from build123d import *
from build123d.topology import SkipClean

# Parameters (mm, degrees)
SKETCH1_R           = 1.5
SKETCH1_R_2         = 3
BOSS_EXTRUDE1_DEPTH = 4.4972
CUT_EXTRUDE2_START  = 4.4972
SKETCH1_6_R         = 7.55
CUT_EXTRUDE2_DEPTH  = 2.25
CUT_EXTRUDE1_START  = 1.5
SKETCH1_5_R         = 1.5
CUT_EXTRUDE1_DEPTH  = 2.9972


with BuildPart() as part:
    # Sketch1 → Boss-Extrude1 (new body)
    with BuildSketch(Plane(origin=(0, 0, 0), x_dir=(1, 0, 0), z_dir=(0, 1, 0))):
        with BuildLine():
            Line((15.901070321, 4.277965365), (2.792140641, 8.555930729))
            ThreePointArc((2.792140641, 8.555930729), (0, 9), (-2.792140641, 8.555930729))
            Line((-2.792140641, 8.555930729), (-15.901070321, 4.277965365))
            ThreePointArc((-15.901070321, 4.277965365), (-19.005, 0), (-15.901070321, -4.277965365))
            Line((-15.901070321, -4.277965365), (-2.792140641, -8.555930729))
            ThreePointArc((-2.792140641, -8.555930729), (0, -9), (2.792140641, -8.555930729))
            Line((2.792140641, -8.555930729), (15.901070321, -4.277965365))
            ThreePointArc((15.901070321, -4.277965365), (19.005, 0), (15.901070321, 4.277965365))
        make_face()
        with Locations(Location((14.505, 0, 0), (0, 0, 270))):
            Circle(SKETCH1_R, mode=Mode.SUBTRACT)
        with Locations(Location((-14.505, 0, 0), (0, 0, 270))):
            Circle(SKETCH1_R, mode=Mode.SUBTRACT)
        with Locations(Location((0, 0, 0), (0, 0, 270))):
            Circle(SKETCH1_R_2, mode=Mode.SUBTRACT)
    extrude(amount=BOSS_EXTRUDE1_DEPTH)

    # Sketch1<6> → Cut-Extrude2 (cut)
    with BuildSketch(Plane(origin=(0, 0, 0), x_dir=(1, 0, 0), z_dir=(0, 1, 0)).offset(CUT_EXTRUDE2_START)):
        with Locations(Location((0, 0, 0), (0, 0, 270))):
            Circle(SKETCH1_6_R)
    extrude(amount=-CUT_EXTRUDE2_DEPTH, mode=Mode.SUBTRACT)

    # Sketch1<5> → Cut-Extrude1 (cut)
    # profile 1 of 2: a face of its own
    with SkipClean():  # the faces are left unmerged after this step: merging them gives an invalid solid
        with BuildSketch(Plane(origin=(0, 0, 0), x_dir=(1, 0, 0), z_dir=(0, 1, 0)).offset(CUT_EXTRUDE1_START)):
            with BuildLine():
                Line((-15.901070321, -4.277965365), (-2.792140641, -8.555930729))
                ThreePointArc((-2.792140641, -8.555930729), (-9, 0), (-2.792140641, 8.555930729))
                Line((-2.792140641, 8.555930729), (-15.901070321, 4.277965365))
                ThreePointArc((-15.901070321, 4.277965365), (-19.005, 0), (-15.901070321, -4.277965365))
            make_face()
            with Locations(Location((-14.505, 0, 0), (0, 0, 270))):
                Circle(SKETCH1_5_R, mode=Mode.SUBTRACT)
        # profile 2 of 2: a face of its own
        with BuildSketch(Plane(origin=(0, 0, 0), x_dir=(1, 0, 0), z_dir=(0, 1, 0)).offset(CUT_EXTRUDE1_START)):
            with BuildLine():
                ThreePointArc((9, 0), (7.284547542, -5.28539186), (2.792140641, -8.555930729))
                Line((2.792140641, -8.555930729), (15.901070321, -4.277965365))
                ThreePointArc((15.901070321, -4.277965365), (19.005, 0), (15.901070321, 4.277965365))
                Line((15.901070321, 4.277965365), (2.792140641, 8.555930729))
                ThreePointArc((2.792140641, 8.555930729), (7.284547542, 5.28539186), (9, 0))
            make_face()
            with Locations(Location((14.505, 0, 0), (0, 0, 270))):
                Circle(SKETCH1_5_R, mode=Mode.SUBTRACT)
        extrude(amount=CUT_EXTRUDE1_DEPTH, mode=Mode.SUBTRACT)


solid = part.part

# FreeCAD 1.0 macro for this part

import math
import FreeCAD as App
import Part
import Sketcher
from FreeCAD import Vector
Q = App.Units.Quantity

doc = App.newDocument("Part")
params = doc.addObject("Spreadsheet::Sheet", "Params")
for row, (alias, value) in enumerate([
    ("sketch1_diameter", "3 mm"),
    ("sketch1_diameter2", "6 mm"),
    ("sketch1_radius", "9 mm"),
    ("sketch1_radius2", "4.5 mm"),
    ("pad1_length", "4.4972 mm"),
    ("sketch2_diameter", "15.1 mm"),
    ("pocket1_length", "2.25 mm"),
    ("sketch3_diameter", "3 mm"),
    ("sketch3_radius", "9 mm"),
    ("sketch3_radius2", "4.5 mm"),
    ("pocket2_length", "2.9972 mm"),
], start=1):
    params.set(f"A{row}", alias)
    params.set(f"B{row}", "=" + value)
    params.setAlias(f"B{row}", alias)

body = doc.addObject("PartDesign::Body", "Body")

sketch1 = body.newObject("Sketcher::SketchObject", "Sketch")
sketch1.AttachmentSupport = (doc.getObject("XZ_Plane"), [""])
sketch1.MapMode = "FlatFace"
sketch1.addGeometry([
    Part.LineSegment(Vector(15.9, -4.3, 0), Vector(2.8, -8.6, 0)),
    Part.ArcOfCircle(Part.Circle(Vector(0, 0, 0), Vector(0, 0, 1), 9), math.radians(-108), math.radians(-72)),
    Part.LineSegment(Vector(-2.8, -8.6, 0), Vector(-15.9, -4.3, 0)),
    Part.ArcOfCircle(Part.Circle(Vector(-14.5, 0, 0), Vector(0, 0, 1), 4.5), math.radians(108), math.radians(252)),
    Part.LineSegment(Vector(-15.9, 4.3, 0), Vector(-2.8, 8.6, 0)),
    Part.ArcOfCircle(Part.Circle(Vector(0, 0, 0), Vector(0, 0, 1), 9), math.radians(72), math.radians(108)),
    Part.LineSegment(Vector(2.8, 8.6, 0), Vector(15.9, 4.3, 0)),
    Part.ArcOfCircle(Part.Circle(Vector(14.5, 0, 0), Vector(0, 0, 1), 4.5), math.radians(-72), math.radians(72)),
    Part.Circle(Vector(-14.5, 0, 0), Vector(0, 0, 1), 1.5),
    Part.Circle(Vector(0, 0, 0), Vector(0, 0, 1), 3),
    Part.Circle(Vector(14.5, 0, 0), Vector(0, 0, 1), 1.5),
], False)
sketch1.addConstraint([
    Sketcher.Constraint("Tangent", 0, 2, 1, 2),
    Sketcher.Constraint("Tangent", 1, 1, 2, 1),
    Sketcher.Constraint("Tangent", 2, 2, 3, 2),
    Sketcher.Constraint("Tangent", 3, 1, 4, 1),
    Sketcher.Constraint("Tangent", 4, 2, 5, 2),
    Sketcher.Constraint("Tangent", 5, 1, 6, 1),
    Sketcher.Constraint("Tangent", 6, 2, 7, 2),
    Sketcher.Constraint("Tangent", 7, 1, 0, 1),
    Sketcher.Constraint("Coincident", 1, 3, -1, 1),
    Sketcher.Constraint("Coincident", 5, 3, -1, 1),
    Sketcher.Constraint("Coincident", 9, 3, -1, 1),
    Sketcher.Constraint("Coincident", 8, 3, 3, 3),
    Sketcher.Constraint("Coincident", 10, 3, 7, 3),
    Sketcher.Constraint("Equal", 1, 5),
    Sketcher.Constraint("Equal", 3, 7),
    Sketcher.Constraint("Equal", 8, 10),
    Sketcher.Constraint("Symmetric", 3, 3, 7, 3, -1, 1),
    Sketcher.Constraint("PointOnObject", 3, 3, -1),
    Sketcher.Constraint("Diameter", 8, Q("3 mm")),
    Sketcher.Constraint("Diameter", 9, Q("6 mm")),
    Sketcher.Constraint("Radius", 1, Q("9 mm")),
    Sketcher.Constraint("Radius", 3, Q("4.5 mm")),
    Sketcher.Constraint("DistanceX", 3, 3, 7, 3, Q("29.01 mm")),
])
sketch1.setExpression("Constraints[18]", "Params.sketch1_diameter")
sketch1.setExpression("Constraints[19]", "Params.sketch1_diameter2")
sketch1.setExpression("Constraints[20]", "Params.sketch1_radius")
sketch1.setExpression("Constraints[21]", "Params.sketch1_radius2")
pad1 = body.newObject("PartDesign::Pad", "Pad")
pad1.Profile = sketch1
pad1.setExpression("Length", "Params.pad1_length")
pad1.Reversed = True

sketch2 = body.newObject("Sketcher::SketchObject", "Sketch001")
sketch2.AttachmentSupport = (doc.getObject("XZ_Plane"), [""])
sketch2.MapMode = "FlatFace"
sketch2.AttachmentOffset = App.Placement(Vector(0, 0, -4.4972), App.Rotation())
sketch2.addGeometry(Part.Circle(Vector(0, 0, 0), Vector(0, 0, 1), 8), False)
sketch2.addConstraint([
    Sketcher.Constraint("Coincident", 0, 3, -1, 1),
    Sketcher.Constraint("Diameter", 0, Q("15.1 mm")),
])
sketch2.setExpression("Constraints[1]", "Params.sketch2_diameter")
pocket1 = body.newObject("PartDesign::Pocket", "Pocket")
pocket1.Profile = sketch2
pocket1.setExpression("Length", "Params.pocket1_length")
pocket1.Reversed = True

sketch3 = body.newObject("Sketcher::SketchObject", "Sketch002")
sketch3.AttachmentSupport = (doc.getObject("XZ_Plane"), [""])
sketch3.MapMode = "FlatFace"
sketch3.AttachmentOffset = App.Placement(Vector(0, 0, -1.5), App.Rotation())
sketch3.addGeometry([
    Part.LineSegment(Vector(-15.9, 4.3, 0), Vector(-2.8, 8.6, 0)),
    Part.ArcOfCircle(Part.Circle(Vector(0, 0, 0), Vector(0, 0, 1), 9), math.radians(108), math.radians(252)),
    Part.LineSegment(Vector(-2.8, -8.6, 0), Vector(-15.9, -4.3, 0)),
    Part.ArcOfCircle(Part.Circle(Vector(-14.5, 0, 0), Vector(0, 0, 1), 4.5), math.radians(108), math.radians(252)),
    Part.Circle(Vector(-14.5, 0, 0), Vector(0, 0, 1), 1.5),
    Part.ArcOfCircle(Part.Circle(Vector(0, 0, 0), Vector(0, 0, 1), 9), math.radians(0), math.radians(72)),
    Part.LineSegment(Vector(2.8, 8.6, 0), Vector(15.9, 4.3, 0)),
    Part.ArcOfCircle(Part.Circle(Vector(14.5, 0, 0), Vector(0, 0, 1), 4.5), math.radians(-72), math.radians(72)),
    Part.LineSegment(Vector(15.9, -4.3, 0), Vector(2.8, -8.6, 0)),
    Part.ArcOfCircle(Part.Circle(Vector(0, 0, 0), Vector(0, 0, 1), 9), math.radians(-72), math.radians(0)),
    Part.Circle(Vector(14.5, 0, 0), Vector(0, 0, 1), 1.5),
], False)
sketch3.addConstraint([
    Sketcher.Constraint("Tangent", 0, 2, 1, 1),
    Sketcher.Constraint("Tangent", 1, 2, 2, 1),
    Sketcher.Constraint("Tangent", 2, 2, 3, 2),
    Sketcher.Constraint("Tangent", 3, 1, 0, 1),
    Sketcher.Constraint("Tangent", 5, 2, 6, 1),
    Sketcher.Constraint("Tangent", 6, 2, 7, 2),
    Sketcher.Constraint("Tangent", 7, 1, 8, 1),
    Sketcher.Constraint("Tangent", 8, 2, 9, 1),
    Sketcher.Constraint("Tangent", 9, 2, 5, 1),
    Sketcher.Constraint("Coincident", 1, 3, -1, 1),
    Sketcher.Constraint("Coincident", 5, 3, -1, 1),
    Sketcher.Constraint("Coincident", 4, 3, 3, 3),
    Sketcher.Constraint("Coincident", 10, 3, 7, 3),
    Sketcher.Constraint("Equal", 1, 5),
    Sketcher.Constraint("Equal", 3, 7),
    Sketcher.Constraint("Equal", 5, 9),
    Sketcher.Constraint("Equal", 4, 10),
    Sketcher.Constraint("Symmetric", 3, 3, 7, 3, -1, 1),
    Sketcher.Constraint("PointOnObject", 3, 3, -1),
    Sketcher.Constraint("PointOnObject", 9, 2, -1),
    Sketcher.Constraint("Diameter", 4, Q("3 mm")),
    Sketcher.Constraint("Radius", 1, Q("9 mm")),
    Sketcher.Constraint("Radius", 3, Q("4.5 mm")),
    Sketcher.Constraint("DistanceX", 3, 3, 7, 3, Q("29.01 mm")),
])
sketch3.setExpression("Constraints[20]", "Params.sketch3_diameter")
sketch3.setExpression("Constraints[21]", "Params.sketch3_radius")
sketch3.setExpression("Constraints[22]", "Params.sketch3_radius2")
pocket2 = body.newObject("PartDesign::Pocket", "Pocket001")
pocket2.Profile = sketch3
pocket2.setExpression("Length", "Params.pocket2_length")

doc.recompute()
